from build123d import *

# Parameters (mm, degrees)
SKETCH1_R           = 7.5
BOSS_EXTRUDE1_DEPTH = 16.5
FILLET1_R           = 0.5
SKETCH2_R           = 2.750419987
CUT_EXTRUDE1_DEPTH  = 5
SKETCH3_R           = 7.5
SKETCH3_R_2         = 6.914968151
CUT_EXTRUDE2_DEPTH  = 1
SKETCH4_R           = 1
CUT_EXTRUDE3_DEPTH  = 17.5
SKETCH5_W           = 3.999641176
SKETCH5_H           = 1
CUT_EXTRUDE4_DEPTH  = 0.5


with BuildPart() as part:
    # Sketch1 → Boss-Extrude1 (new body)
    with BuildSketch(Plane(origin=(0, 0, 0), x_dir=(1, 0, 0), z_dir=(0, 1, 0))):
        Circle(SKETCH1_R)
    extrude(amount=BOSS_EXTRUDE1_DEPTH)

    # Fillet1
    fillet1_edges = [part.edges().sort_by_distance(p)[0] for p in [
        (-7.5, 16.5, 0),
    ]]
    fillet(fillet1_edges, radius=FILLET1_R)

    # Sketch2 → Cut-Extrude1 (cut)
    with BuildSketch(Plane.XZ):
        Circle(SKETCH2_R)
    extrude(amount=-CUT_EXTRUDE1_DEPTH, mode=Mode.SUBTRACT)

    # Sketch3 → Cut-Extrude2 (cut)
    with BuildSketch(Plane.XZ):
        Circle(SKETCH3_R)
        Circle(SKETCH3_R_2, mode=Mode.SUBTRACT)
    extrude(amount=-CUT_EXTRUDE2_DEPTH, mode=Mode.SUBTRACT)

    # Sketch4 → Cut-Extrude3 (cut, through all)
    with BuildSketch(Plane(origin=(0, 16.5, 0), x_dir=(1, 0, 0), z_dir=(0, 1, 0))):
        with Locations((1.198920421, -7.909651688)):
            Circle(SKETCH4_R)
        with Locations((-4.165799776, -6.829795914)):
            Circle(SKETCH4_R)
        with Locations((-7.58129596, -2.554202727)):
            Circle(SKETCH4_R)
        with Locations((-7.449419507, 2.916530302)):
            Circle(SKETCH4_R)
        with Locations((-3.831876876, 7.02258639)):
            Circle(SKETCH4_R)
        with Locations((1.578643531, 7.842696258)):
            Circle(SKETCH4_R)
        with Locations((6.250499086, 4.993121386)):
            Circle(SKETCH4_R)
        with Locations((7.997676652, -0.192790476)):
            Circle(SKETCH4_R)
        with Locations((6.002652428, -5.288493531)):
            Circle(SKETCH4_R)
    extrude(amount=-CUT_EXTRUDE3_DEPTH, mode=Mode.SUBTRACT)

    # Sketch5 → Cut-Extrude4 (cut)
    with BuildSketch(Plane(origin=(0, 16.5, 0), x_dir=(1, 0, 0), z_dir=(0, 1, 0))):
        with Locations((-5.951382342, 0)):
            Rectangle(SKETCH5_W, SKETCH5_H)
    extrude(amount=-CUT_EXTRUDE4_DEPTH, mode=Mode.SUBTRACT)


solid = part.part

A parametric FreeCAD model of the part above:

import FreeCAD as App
import Part
import Sketcher
Q = App.Units.Quantity


def edges_at(feature, points):
    """Names of the edges that pass closest to the given points."""
    edges = feature.Shape.Edges
    near = lambda p: min(range(len(edges)), key=lambda i: edges[i].distToShape(Part.Vertex(*p))[0])
    return sorted({f"Edge{near(p) + 1}" for p in points})


def add_polygon(sketch, points):
    """Adds a closed chain of lines whose ends are joined by coincident constraints."""
    first, n = sketch.GeometryCount, len(points)
    for a, b in zip(points, points[1:] + points[:1]):
        sketch.addGeometry(Part.LineSegment(App.Vector(*a, 0), App.Vector(*b, 0)), False)
    for i in range(n):
        sketch.addConstraint(Sketcher.Constraint("Coincident", first + i, 2, first + (i + 1) % n, 1))

doc = App.newDocument("Part")
body = doc.addObject("PartDesign::Body", "Body")

# Sketch on XZ plane
sketch1 = body.newObject("Sketcher::SketchObject", "Sketch")
sketch1.AttachmentSupport = (doc.getObject("XZ_Plane"), [""])
sketch1.MapMode = "FlatFace"
sketch1.addGeometry(Part.Circle(App.Vector(0, 0, 0), App.Vector(0, 0, 1), 7.5), False)
sketch1.addConstraint(Sketcher.Constraint("Coincident", 0, 3, -1, 1))
sketch1.addConstraint(Sketcher.Constraint("Diameter", 0, Q("15 mm")))
pad1 = body.newObject("PartDesign::Pad", "Pad")
pad1.Profile = sketch1
pad1.Length = 16.5
pad1.Reversed = True
doc.recompute()

fillet = body.newObject("PartDesign::Fillet", "Fillet")
fillet.Base = (pad1, edges_at(pad1, [(-7.5, 16.5, 0)]))
fillet.Radius = 0.5

# Sketch on XZ plane
sketch2 = body.newObject("Sketcher::SketchObject", "Sketch001")
sketch2.AttachmentSupport = (doc.getObject("XZ_Plane"), [""])
sketch2.MapMode = "FlatFace"
sketch2.addGeometry(Part.Circle(App.Vector(0, 0, 0), App.Vector(0, 0, 1), 2.75042), False)
sketch2.addConstraint(Sketcher.Constraint("Coincident", 0, 3, -1, 1))
sketch2.addConstraint(Sketcher.Constraint("Diameter", 0, Q("5.50084 mm")))
pocket1 = body.newObject("PartDesign::Pocket", "Pocket")
pocket1.Profile = sketch2
pocket1.Length = 5

# Sketch on XZ plane
sketch3 = body.newObject("Sketcher::SketchObject", "Sketch002")
sketch3.AttachmentSupport = (doc.getObject("XZ_Plane"), [""])
sketch3.MapMode = "FlatFace"
sketch3.addGeometry(Part.Circle(App.Vector(0, 0, 0), App.Vector(0, 0, 1), 7.5), False)
sketch3.addGeometry(Part.Circle(App.Vector(0, 0, 0), App.Vector(0, 0, 1), 6.914968), False)
sketch3.addConstraint(Sketcher.Constraint("Coincident", 0, 3, -1, 1))
sketch3.addConstraint(Sketcher.Constraint("Coincident", 1, 3, -1, 1))
sketch3.addConstraint(Sketcher.Constraint("Diameter", 0, Q("15 mm")))
sketch3.addConstraint(Sketcher.Constraint("Diameter", 1, Q("13.829936 mm")))
pocket2 = body.newObject("PartDesign::Pocket", "Pocket001")
pocket2.Profile = sketch3
pocket2.Length = 1

# Sketch on XZ plane
sketch4 = body.newObject("Sketcher::SketchObject", "Sketch003")
sketch4.AttachmentSupport = (doc.getObject("XZ_Plane"), [""])
sketch4.MapMode = "FlatFace"
sketch4.AttachmentOffset = App.Placement(App.Vector(0, 0, -16.5), App.Rotation())
sketch4.addGeometry(Part.Circle(App.Vector(1.19892, 7.909652, 0), App.Vector(0, 0, 1), 1), False)
sketch4.addGeometry(Part.Circle(App.Vector(-4.1658, 6.829796, 0), App.Vector(0, 0, 1), 1), False)
sketch4.addGeometry(Part.Circle(App.Vector(-7.581296, 2.554203, 0), App.Vector(0, 0, 1), 1), False)
sketch4.addGeometry(Part.Circle(App.Vector(-7.44942, -2.91653, 0), App.Vector(0, 0, 1), 1), False)
sketch4.addGeometry(Part.Circle(App.Vector(-3.831877, -7.022586, 0), App.Vector(0, 0, 1), 1), False)
sketch4.addGeometry(Part.Circle(App.Vector(1.578644, -7.842696, 0), App.Vector(0, 0, 1), 1), False)
sketch4.addGeometry(Part.Circle(App.Vector(6.250499, -4.993121, 0), App.Vector(0, 0, 1), 1), False)
sketch4.addGeometry(Part.Circle(App.Vector(7.997677, 0.19279, 0), App.Vector(0, 0, 1), 1), False)
sketch4.addGeometry(Part.Circle(App.Vector(6.002652, 5.288494, 0), App.Vector(0, 0, 1), 1), False)
sketch4.addConstraint(Sketcher.Constraint("Equal", 0, 1))
sketch4.addConstraint(Sketcher.Constraint("Equal", 1, 2))
sketch4.addConstraint(Sketcher.Constraint("Equal", 2, 3))
sketch4.addConstraint(Sketcher.Constraint("Equal", 3, 4))
sketch4.addConstraint(Sketcher.Constraint("Equal", 4, 5))
sketch4.addConstraint(Sketcher.Constraint("Equal", 5, 6))
sketch4.addConstraint(Sketcher.Constraint("Equal", 6, 7))
sketch4.addConstraint(Sketcher.Constraint("Equal", 7, 8))
sketch4.addConstraint(Sketcher.Constraint("Diameter", 0, Q("2 mm")))
sketch4.addConstraint(Sketcher.Constraint("DistanceX", 1, 3, -1, 1, Q("4.1658 mm")))
sketch4.addConstraint(Sketcher.Constraint("DistanceX", -1, 1, 6, 3, Q("6.250499 mm")))
sketch4.addConstraint(Sketcher.Constraint("DistanceY", 5, 3, 2, 3, Q("10.396899 mm")))
sketch4.addConstraint(Sketcher.Constraint("DistanceX", -1, 1, 0, 3, Q("1.19892 mm")))
sketch4.addConstraint(Sketcher.Constraint("DistanceY", -1, 1, 0, 3, Q("7.909652 mm")))
sketch4.addConstraint(Sketcher.Constraint("DistanceX", 3, 3, -1, 1, Q("7.44942 mm")))
sketch4.addConstraint(Sketcher.Constraint("DistanceY", 3, 3, -1, 1, Q("2.91653 mm")))
sketch4.addConstraint(Sketcher.Constraint("DistanceY", 6, 3, -1, 1, Q("4.993121 mm")))
sketch4.addConstraint(Sketcher.Constraint("DistanceY", -1, 1, 7, 3, Q("0.19279 mm")))
sketch4.addConstraint(Sketcher.Constraint("DistanceY", 2, 3, 0, 3, Q("5.355449 mm")))
sketch4.addConstraint(Sketcher.Constraint("DistanceX", 2, 3, 4, 3, Q("3.749419 mm")))
sketch4.addConstraint(Sketcher.Constraint("DistanceY", 4, 3, 2, 3, Q("9.576789 mm")))
sketch4.addConstraint(Sketcher.Constraint("DistanceX", 4, 3, 5, 3, Q("5.41052 mm")))
sketch4.addConstraint(Sketcher.Constraint("DistanceY", 8, 3, 0, 3, Q("2.621158 mm")))
sketch4.addConstraint(Sketcher.Constraint("DistanceX", 5, 3, 8, 3, Q("4.424009 mm")))
sketch4.addConstraint(Sketcher.Constraint("DistanceY", -1, 1, 1, 3, Q("6.829796 mm")))
sketch4.addConstraint(Sketcher.Constraint("DistanceX", 2, 3, -1, 1, Q("7.581296 mm")))
sketch4.addConstraint(Sketcher.Constraint("DistanceX", -1, 1, 7, 3, Q("7.997677 mm")))
pocket3 = body.newObject("PartDesign::Pocket", "Pocket002")
pocket3.Profile = sketch4
pocket3.Type = "ThroughAll"
pocket3.Reversed = True

# Sketch on XZ plane
sketch5 = body.newObject("Sketcher::SketchObject", "Sketch004")
sketch5.AttachmentSupport = (doc.getObject("XZ_Plane"), [""])
sketch5.MapMode = "FlatFace"
sketch5.AttachmentOffset = App.Placement(App.Vector(0, 0, -16.5), App.Rotation())
add_polygon(sketch5, [(-7.951203, -0.5), (-7.951203, 0.5), (-3.951562, 0.5), (-3.951562, -0.5)])  # lines 0-3
sketch5.addConstraint(Sketcher.Constraint("Vertical", 0))
sketch5.addConstraint(Sketcher.Constraint("Horizontal", 1))
sketch5.addConstraint(Sketcher.Constraint("Vertical", 2))
sketch5.addConstraint(Sketcher.Constraint("Horizontal", 3))
sketch5.addConstraint(Sketcher.Constraint("DistanceY", 0, 1, 0, 2, Q("1 mm")))
sketch5.addConstraint(Sketcher.Constraint("DistanceY", -1, 1, 0, 2, Q("0.5 mm")))
sketch5.addConstraint(Sketcher.Constraint("DistanceX", 1, 1, 1, 2, Q("3.999641 mm")))
sketch5.addConstraint(Sketcher.Constraint("DistanceX", 1, 2, -1, 1, Q("3.951562 mm")))
pocket4 = body.newObject("PartDesign::Pocket", "Pocket003")
pocket4.Profile = sketch5
pocket4.Length = 0.5
pocket4.Reversed = True

doc.recompute()
